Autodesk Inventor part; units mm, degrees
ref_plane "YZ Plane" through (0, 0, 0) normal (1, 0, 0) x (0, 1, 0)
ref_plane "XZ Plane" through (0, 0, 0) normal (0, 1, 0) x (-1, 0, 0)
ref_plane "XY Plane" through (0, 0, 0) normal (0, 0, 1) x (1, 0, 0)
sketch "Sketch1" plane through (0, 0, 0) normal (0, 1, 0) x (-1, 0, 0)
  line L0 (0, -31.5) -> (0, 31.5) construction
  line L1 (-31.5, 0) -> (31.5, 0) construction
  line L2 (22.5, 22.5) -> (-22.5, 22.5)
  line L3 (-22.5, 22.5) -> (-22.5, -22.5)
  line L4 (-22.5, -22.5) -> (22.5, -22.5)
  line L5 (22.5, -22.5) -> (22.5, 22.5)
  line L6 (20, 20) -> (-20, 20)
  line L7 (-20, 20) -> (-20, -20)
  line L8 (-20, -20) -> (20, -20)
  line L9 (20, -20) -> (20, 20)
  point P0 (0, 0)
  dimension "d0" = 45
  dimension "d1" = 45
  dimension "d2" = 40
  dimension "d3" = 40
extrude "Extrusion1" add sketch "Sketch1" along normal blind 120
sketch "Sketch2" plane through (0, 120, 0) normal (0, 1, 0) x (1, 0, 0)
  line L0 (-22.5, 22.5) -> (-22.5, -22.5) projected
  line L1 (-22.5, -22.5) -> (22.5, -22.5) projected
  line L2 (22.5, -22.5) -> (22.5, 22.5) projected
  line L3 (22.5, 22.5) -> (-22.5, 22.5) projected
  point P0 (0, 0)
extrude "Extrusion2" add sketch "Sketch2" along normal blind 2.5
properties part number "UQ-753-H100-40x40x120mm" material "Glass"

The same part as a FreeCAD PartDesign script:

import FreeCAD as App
import Part
import Sketcher

doc = App.newDocument("Part")
body = doc.addObject("PartDesign::Body", "Body")

sketch1 = body.newObject("Sketcher::SketchObject", "Sketch")
sketch1.AttachmentSupport = (doc.getObject("XZ_Plane"), [""])
sketch1.MapMode = "FlatFace"
sketch1.addGeometry([
    Part.LineSegment(App.Vector(-22, -22, 0), App.Vector(-22, 22, 0)),
    Part.LineSegment(App.Vector(-22, 22, 0), App.Vector(22, 22, 0)),
    Part.LineSegment(App.Vector(22, 22, 0), App.Vector(22, -22, 0)),
    Part.LineSegment(App.Vector(22, -22, 0), App.Vector(-22, -22, 0)),
    Part.LineSegment(App.Vector(20, 20, 0), App.Vector(-20, 20, 0)),
    Part.LineSegment(App.Vector(-20, 20, 0), App.Vector(-20, -20, 0)),
    Part.LineSegment(App.Vector(-20, -20, 0), App.Vector(20, -20, 0)),
    Part.LineSegment(App.Vector(20, -20, 0), App.Vector(20, 20, 0)),
], False)
sketch1.addConstraint([
    Sketcher.Constraint("Coincident", 0, 2, 1, 1),
    Sketcher.Constraint("Coincident", 1, 2, 2, 1),
    Sketcher.Constraint("Coincident", 2, 2, 3, 1),
    Sketcher.Constraint("Coincident", 3, 2, 0, 1),
    Sketcher.Constraint("Coincident", 4, 2, 5, 1),
    Sketcher.Constraint("Coincident", 5, 2, 6, 1),
    Sketcher.Constraint("Coincident", 6, 2, 7, 1),
    Sketcher.Constraint("Coincident", 7, 2, 4, 1),
    Sketcher.Constraint("Vertical", 0),
    Sketcher.Constraint("Horizontal", 1),
    Sketcher.Constraint("Vertical", 2),
    Sketcher.Constraint("Horizontal", 3),
    Sketcher.Constraint("Horizontal", 4),
    Sketcher.Constraint("Vertical", 5),
    Sketcher.Constraint("Horizontal", 6),
    Sketcher.Constraint("Vertical", 7),
    Sketcher.Constraint("Symmetric", 0, 2, 2, 2, -1, 1),
    Sketcher.Constraint("Symmetric", 4, 2, 6, 2, -1, 1),
    Sketcher.Constraint("Equal", 3, 0),
    Sketcher.Constraint("Equal", 6, 5),
    Sketcher.Constraint("DistanceX", 1, 1, 1, 2, 45.0),
    Sketcher.Constraint("DistanceX", 4, 2, 4, 1, 40.0),
])
pad1 = body.newObject("PartDesign::Pad", "Pad")
pad1.Profile = sketch1
pad1.Length = 120
pad1.Reversed = True

sketch2 = body.newObject("Sketcher::SketchObject", "Sketch001")
sketch2.AttachmentSupport = (doc.getObject("XZ_Plane"), [""])
sketch2.MapMode = "FlatFace"
sketch2.AttachmentOffset = App.Placement(App.Vector(0, 0, -120), App.Rotation())
sketch2.addGeometry([
    Part.LineSegment(App.Vector(22, -22, 0), App.Vector(-22, -22, 0)),
    Part.LineSegment(App.Vector(-22, -22, 0), App.Vector(-22, 22, 0)),
    Part.LineSegment(App.Vector(-22, 22, 0), App.Vector(22, 22, 0)),
    Part.LineSegment(App.Vector(22, 22, 0), App.Vector(22, -22, 0)),
], False)
sketch2.addConstraint([
    Sketcher.Constraint("Coincident", 0, 2, 1, 1),
    Sketcher.Constraint("Coincident", 1, 2, 2, 1),
    Sketcher.Constraint("Coincident", 2, 2, 3, 1),
    Sketcher.Constraint("Coincident", 3, 2, 0, 1),
    Sketcher.Constraint("Horizontal", 0),
    Sketcher.Constraint("Vertical", 1),
    Sketcher.Constraint("Horizontal", 2),
    Sketcher.Constraint("Vertical", 3),
    Sketcher.Constraint("Symmetric", 0, 2, 2, 2, -1, 1),
    Sketcher.Constraint("Equal", 2, 1),
    Sketcher.Constraint("DistanceX", 0, 2, 0, 1, 45.0),
])
pad2 = body.newObject("PartDesign::Pad", "Pad001")
pad2.Profile = sketch2
pad2.Length = 2.5
pad2.Reversed = True

doc.recompute()
